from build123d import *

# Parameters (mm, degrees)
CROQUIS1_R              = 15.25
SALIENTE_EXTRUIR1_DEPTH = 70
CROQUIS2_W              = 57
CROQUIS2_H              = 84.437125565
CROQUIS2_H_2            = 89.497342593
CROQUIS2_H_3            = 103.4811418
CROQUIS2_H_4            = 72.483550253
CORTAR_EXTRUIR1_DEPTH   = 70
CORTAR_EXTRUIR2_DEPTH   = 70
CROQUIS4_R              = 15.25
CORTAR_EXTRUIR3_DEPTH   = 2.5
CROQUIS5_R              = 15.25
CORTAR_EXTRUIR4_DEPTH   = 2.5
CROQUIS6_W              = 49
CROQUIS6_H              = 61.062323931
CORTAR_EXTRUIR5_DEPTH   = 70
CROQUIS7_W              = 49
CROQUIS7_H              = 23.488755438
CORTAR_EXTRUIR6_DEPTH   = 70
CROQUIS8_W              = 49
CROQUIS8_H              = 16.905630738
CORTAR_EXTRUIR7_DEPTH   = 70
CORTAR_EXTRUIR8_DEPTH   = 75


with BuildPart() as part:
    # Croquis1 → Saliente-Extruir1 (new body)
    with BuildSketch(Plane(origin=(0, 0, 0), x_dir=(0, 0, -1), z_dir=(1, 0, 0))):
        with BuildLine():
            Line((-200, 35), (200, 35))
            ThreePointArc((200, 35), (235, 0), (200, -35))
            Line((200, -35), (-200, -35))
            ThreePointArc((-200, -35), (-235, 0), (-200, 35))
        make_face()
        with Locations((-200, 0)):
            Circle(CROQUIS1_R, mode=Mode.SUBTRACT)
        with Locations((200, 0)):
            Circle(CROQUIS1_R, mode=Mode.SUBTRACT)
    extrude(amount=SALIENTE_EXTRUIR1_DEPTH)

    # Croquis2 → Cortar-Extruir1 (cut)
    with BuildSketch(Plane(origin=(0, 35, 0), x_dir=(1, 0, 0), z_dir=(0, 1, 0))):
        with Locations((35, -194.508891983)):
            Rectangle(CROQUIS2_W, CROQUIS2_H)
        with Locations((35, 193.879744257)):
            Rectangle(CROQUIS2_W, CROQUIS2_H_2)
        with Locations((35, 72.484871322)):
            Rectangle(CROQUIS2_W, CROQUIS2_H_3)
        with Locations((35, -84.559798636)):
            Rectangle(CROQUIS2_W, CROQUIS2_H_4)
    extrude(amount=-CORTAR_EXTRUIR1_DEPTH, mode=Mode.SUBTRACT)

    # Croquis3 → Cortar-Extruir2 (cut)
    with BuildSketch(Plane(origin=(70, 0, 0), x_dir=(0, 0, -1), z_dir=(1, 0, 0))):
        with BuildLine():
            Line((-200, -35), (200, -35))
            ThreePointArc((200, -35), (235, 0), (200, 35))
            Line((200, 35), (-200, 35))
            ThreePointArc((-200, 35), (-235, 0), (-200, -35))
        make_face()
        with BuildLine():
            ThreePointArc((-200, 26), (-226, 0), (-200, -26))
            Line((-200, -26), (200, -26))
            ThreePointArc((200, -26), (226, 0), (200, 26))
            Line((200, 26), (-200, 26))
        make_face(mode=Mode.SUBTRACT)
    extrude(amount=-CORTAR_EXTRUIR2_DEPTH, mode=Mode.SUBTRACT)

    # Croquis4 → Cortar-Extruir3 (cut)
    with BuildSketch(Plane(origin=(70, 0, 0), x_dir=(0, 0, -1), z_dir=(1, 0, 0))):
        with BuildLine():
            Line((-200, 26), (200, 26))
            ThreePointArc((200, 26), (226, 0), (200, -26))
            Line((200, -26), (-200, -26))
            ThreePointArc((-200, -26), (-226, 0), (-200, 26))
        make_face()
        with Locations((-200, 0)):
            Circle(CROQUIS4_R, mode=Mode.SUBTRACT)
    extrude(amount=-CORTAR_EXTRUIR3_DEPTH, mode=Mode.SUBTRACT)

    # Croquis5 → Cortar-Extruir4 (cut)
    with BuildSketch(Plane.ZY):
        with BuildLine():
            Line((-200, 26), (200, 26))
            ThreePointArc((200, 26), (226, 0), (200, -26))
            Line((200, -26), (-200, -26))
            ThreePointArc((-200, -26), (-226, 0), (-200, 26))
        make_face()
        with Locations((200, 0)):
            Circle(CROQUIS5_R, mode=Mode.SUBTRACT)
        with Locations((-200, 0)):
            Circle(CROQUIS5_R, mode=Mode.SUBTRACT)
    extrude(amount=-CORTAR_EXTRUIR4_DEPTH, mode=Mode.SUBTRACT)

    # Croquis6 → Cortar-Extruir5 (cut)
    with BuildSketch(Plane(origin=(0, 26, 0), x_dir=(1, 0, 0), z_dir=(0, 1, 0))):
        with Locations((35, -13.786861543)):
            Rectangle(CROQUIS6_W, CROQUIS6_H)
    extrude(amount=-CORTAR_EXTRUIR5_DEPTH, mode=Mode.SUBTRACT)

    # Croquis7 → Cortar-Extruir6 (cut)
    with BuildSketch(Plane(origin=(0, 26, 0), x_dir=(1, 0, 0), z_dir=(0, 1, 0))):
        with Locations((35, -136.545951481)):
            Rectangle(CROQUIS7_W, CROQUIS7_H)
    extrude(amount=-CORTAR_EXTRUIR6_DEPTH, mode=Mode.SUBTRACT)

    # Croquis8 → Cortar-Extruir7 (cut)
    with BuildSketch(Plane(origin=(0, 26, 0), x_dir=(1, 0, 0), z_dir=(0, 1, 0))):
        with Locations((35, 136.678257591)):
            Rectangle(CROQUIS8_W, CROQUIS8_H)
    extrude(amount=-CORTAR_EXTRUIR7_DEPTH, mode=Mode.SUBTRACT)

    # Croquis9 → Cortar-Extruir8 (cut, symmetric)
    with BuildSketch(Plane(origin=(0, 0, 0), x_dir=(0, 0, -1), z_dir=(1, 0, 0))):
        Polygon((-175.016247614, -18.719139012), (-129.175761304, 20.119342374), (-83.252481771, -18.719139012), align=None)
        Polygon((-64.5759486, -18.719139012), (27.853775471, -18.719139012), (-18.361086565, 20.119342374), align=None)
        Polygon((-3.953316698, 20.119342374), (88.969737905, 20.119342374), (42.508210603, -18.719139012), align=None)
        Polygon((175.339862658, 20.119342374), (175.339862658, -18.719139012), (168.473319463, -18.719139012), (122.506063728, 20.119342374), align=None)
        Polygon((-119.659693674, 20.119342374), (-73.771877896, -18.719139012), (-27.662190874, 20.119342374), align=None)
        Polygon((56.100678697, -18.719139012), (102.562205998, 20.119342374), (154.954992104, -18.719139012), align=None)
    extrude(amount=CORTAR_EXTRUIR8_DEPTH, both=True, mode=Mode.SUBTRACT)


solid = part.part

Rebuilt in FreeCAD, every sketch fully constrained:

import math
import FreeCAD as App
import Part
import Sketcher
Q = App.Units.Quantity


def add_polygon(sketch, points):
    """Adds a closed chain of lines whose ends are joined by coincident constraints."""
    first, n = sketch.GeometryCount, len(points)
    for a, b in zip(points, points[1:] + points[:1]):
        sketch.addGeometry(Part.LineSegment(App.Vector(*a, 0), App.Vector(*b, 0)), False)
    for i in range(n):
        sketch.addConstraint(Sketcher.Constraint("Coincident", first + i, 2, first + (i + 1) % n, 1))

doc = App.newDocument("Part")
body = doc.addObject("PartDesign::Body", "Body")

# Sketch on YZ plane
sketch1 = body.newObject("Sketcher::SketchObject", "Sketch")
sketch1.AttachmentSupport = (doc.getObject("YZ_Plane"), [""])
sketch1.MapMode = "FlatFace"
sketch1.addGeometry([
    Part.LineSegment(App.Vector(35, -200, 0), App.Vector(35, 200, 0)),  # 0
    Part.ArcOfCircle(Part.Circle(App.Vector(0, 200, 0), App.Vector(0, 0, 1), 35), math.radians(0), math.radians(180)),  # 1
    Part.LineSegment(App.Vector(-35, 200, 0), App.Vector(-35, -200, 0)),  # 2
    Part.ArcOfCircle(Part.Circle(App.Vector(0, -200, 0), App.Vector(0, 0, 1), 35), math.radians(180), math.radians(360)),  # 3
    Part.Circle(App.Vector(0, -200, 0), App.Vector(0, 0, 1), 15.25),  # 4
    Part.Circle(App.Vector(0, 200, 0), App.Vector(0, 0, 1), 15.25),  # 5
], False)
sketch1.addConstraint([
    Sketcher.Constraint("Tangent", 0, 2, 1, 1),
    Sketcher.Constraint("Tangent", 1, 2, 2, 1),
    Sketcher.Constraint("Tangent", 2, 2, 3, 1),
    Sketcher.Constraint("Tangent", 3, 2, 0, 1),
    Sketcher.Constraint("Vertical", 0),
    Sketcher.Constraint("Vertical", 2),
    Sketcher.Constraint("Coincident", 4, 3, 3, 3),
    Sketcher.Constraint("Coincident", 5, 3, 1, 3),
    Sketcher.Constraint("Equal", 4, 5),
    Sketcher.Constraint("Symmetric", 1, 3, 3, 3, -1, 1),
    Sketcher.Constraint("Radius", 1, Q("35 mm")),
    Sketcher.Constraint("Diameter", 4, Q("30.5 mm")),
    Sketcher.Constraint("DistanceY", 0, 1, 0, 2, Q("400 mm")),
])
pad1 = body.newObject("PartDesign::Pad", "Pad")
pad1.Profile = sketch1
pad1.Length = 70

# Sketch on XZ plane
sketch2 = body.newObject("Sketcher::SketchObject", "Sketch001")
sketch2.AttachmentSupport = (doc.getObject("XZ_Plane"), [""])
sketch2.MapMode = "FlatFace"
sketch2.AttachmentOffset = App.Placement(App.Vector(0, 0, -35), App.Rotation())
add_polygon(sketch2, [(6.5, 152.290329), (6.5, 236.727455), (63.5, 236.727455), (63.5, 152.290329)])  # lines 0-3
add_polygon(sketch2, [(6.5, -238.628416), (6.5, -149.131073), (63.5, -149.131073), (63.5, -238.628416)])  # lines 4-7
add_polygon(sketch2, [(6.5, -124.225442), (6.5, -20.7443), (63.5, -20.7443), (63.5, -124.225442)])  # lines 8-11
add_polygon(sketch2, [(6.5, 48.318024), (6.5, 120.801574), (63.5, 120.801574), (63.5, 48.318024)])  # lines 12-15
sketch2.addConstraint([
    Sketcher.Constraint("Vertical", 0),
    Sketcher.Constraint("Horizontal", 1),
    Sketcher.Constraint("Vertical", 2),
    Sketcher.Constraint("Horizontal", 3),
    Sketcher.Constraint("Vertical", 4),
    Sketcher.Constraint("Horizontal", 5),
    Sketcher.Constraint("Vertical", 6),
    Sketcher.Constraint("Horizontal", 7),
    Sketcher.Constraint("Vertical", 8),
    Sketcher.Constraint("Horizontal", 9),
    Sketcher.Constraint("Vertical", 10),
    Sketcher.Constraint("Horizontal", 11),
    Sketcher.Constraint("Vertical", 12),
    Sketcher.Constraint("Horizontal", 13),
    Sketcher.Constraint("Vertical", 14),
    Sketcher.Constraint("Horizontal", 15),
    Sketcher.Constraint("Vertical", 3, 2, 4, 2),
    Sketcher.Constraint("Vertical", 2, 2, 5, 2),
    Sketcher.Constraint("Vertical", 7, 2, 8, 2),
    Sketcher.Constraint("Vertical", 6, 2, 9, 2),
    Sketcher.Constraint("Vertical", 11, 2, 12, 2),
    Sketcher.Constraint("Vertical", 10, 2, 13, 2),
    Sketcher.Constraint("DistanceX", 1, 1, 1, 2, Q("57 mm")),
    Sketcher.Constraint("DistanceX", -1, 1, 0, 2, Q("6.5 mm")),
    Sketcher.Constraint("DistanceY", 8, 1, 8, 2, Q("103.481142 mm")),
    Sketcher.Constraint("DistanceY", 12, 1, 12, 2, Q("72.48355 mm")),
    Sketcher.Constraint("DistanceY", 8, 2, -1, 1, Q("20.7443 mm")),
    Sketcher.Constraint("DistanceY", 0, 1, 0, 2, Q("84.437126 mm")),
    Sketcher.Constraint("DistanceY", 4, 1, 4, 2, Q("89.497343 mm")),
    Sketcher.Constraint("DistanceY", -1, 1, 2, 2, Q("152.290329 mm")),
    Sketcher.Constraint("DistanceY", 6, 2, 1, 2, Q("475.35587 mm")),
    Sketcher.Constraint("DistanceY", 12, 2, 0, 2, Q("115.925881 mm")),
])
pocket1 = body.newObject("PartDesign::Pocket", "Pocket")
pocket1.Profile = sketch2
pocket1.Length = 70
pocket1.Reversed = True

# Sketch on YZ plane
sketch3 = body.newObject("Sketcher::SketchObject", "Sketch002")
sketch3.AttachmentSupport = (doc.getObject("YZ_Plane"), [""])
sketch3.MapMode = "FlatFace"
sketch3.AttachmentOffset = App.Placement(App.Vector(0, 0, 70), App.Rotation())
sketch3.addGeometry([
    Part.LineSegment(App.Vector(-35, 200, 0), App.Vector(-35, -200, 0)),  # 0
    Part.ArcOfCircle(Part.Circle(App.Vector(0, -200, 0), App.Vector(0, 0, 1), 35), math.radians(180), math.radians(360)),  # 1
    Part.LineSegment(App.Vector(35, -200, 0), App.Vector(35, 200, 0)),  # 2
    Part.ArcOfCircle(Part.Circle(App.Vector(0, 200, 0), App.Vector(0, 0, 1), 35), math.radians(0), math.radians(180)),  # 3
    Part.ArcOfCircle(Part.Circle(App.Vector(0, 200, 0), App.Vector(0, 0, 1), 26), math.radians(0), math.radians(180)),  # 4
    Part.LineSegment(App.Vector(26, 200, 0), App.Vector(26, -200, 0)),  # 5
    Part.ArcOfCircle(Part.Circle(App.Vector(0, -200, 0), App.Vector(0, 0, 1), 26), math.radians(180), math.radians(360)),  # 6
    Part.LineSegment(App.Vector(-26, -200, 0), App.Vector(-26, 200, 0)),  # 7
], False)
sketch3.addConstraint([
    Sketcher.Constraint("Tangent", 0, 2, 1, 1),
    Sketcher.Constraint("Tangent", 1, 2, 2, 1),
    Sketcher.Constraint("Tangent", 2, 2, 3, 1),
    Sketcher.Constraint("Tangent", 3, 2, 0, 1),
    Sketcher.Constraint("Tangent", 4, 1, 5, 1),
    Sketcher.Constraint("Tangent", 5, 2, 6, 2),
    Sketcher.Constraint("Tangent", 6, 1, 7, 1),
    Sketcher.Constraint("Tangent", 7, 2, 4, 2),
    Sketcher.Constraint("Vertical", 0),
    Sketcher.Constraint("Vertical", 2),
    Sketcher.Constraint("Vertical", 5),
    Sketcher.Constraint("Vertical", 7),
    Sketcher.Constraint("Coincident", 4, 3, 3, 3),
    Sketcher.Constraint("Symmetric", 1, 3, 3, 3, -1, 1),
    Sketcher.Constraint("Horizontal", 6, 3, 0, 2),
    Sketcher.Constraint("Radius", 1, Q("35 mm")),
    Sketcher.Constraint("Radius", 4, Q("26 mm")),
    Sketcher.Constraint("DistanceY", 0, 2, 0, 1, Q("400 mm")),
])
pocket2 = body.newObject("PartDesign::Pocket", "Pocket001")
pocket2.Profile = sketch3
pocket2.Length = 70

# Sketch on YZ plane
sketch4 = body.newObject("Sketcher::SketchObject", "Sketch003")
sketch4.AttachmentSupport = (doc.getObject("YZ_Plane"), [""])
sketch4.MapMode = "FlatFace"
sketch4.AttachmentOffset = App.Placement(App.Vector(0, 0, 70), App.Rotation())
sketch4.addGeometry([
    Part.LineSegment(App.Vector(26, -200, 0), App.Vector(26, 200, 0)),  # 0
    Part.ArcOfCircle(Part.Circle(App.Vector(0, 200, 0), App.Vector(0, 0, 1), 26), math.radians(0), math.radians(180)),  # 1
    Part.LineSegment(App.Vector(-26, 200, 0), App.Vector(-26, -200, 0)),  # 2
    Part.ArcOfCircle(Part.Circle(App.Vector(0, -200, 0), App.Vector(0, 0, 1), 26), math.radians(180), math.radians(360)),  # 3
    Part.Circle(App.Vector(0, 200, 0), App.Vector(0, 0, 1), 15.25),  # 4
], False)
sketch4.addConstraint([
    Sketcher.Constraint("Tangent", 0, 2, 1, 1),
    Sketcher.Constraint("Tangent", 1, 2, 2, 1),
    Sketcher.Constraint("Tangent", 2, 2, 3, 1),
    Sketcher.Constraint("Tangent", 3, 2, 0, 1),
    Sketcher.Constraint("Vertical", 0),
    Sketcher.Constraint("Vertical", 2),
    Sketcher.Constraint("Coincident", 4, 3, 1, 3),
    Sketcher.Constraint("Symmetric", 1, 3, 3, 3, -1, 1),
    Sketcher.Constraint("Radius", 1, Q("26 mm")),
    Sketcher.Constraint("Diameter", 4, Q("30.5 mm")),
    Sketcher.Constraint("DistanceY", 0, 1, 0, 2, Q("400 mm")),
])
pocket3 = body.newObject("PartDesign::Pocket", "Pocket002")
pocket3.Profile = sketch4
pocket3.Length = 2.5

# Sketch on YZ plane
sketch5 = body.newObject("Sketcher::SketchObject", "Sketch004")
sketch5.AttachmentSupport = (doc.getObject("YZ_Plane"), [""])
sketch5.MapMode = "FlatFace"
sketch5.addGeometry([
    Part.LineSegment(App.Vector(26, 200, 0), App.Vector(26, -200, 0)),  # 0
    Part.ArcOfCircle(Part.Circle(App.Vector(0, -200, 0), App.Vector(0, 0, 1), 26), math.radians(180), math.radians(360)),  # 1
    Part.LineSegment(App.Vector(-26, -200, 0), App.Vector(-26, 200, 0)),  # 2
    Part.ArcOfCircle(Part.Circle(App.Vector(0, 200, 0), App.Vector(0, 0, 1), 26), math.radians(0), math.radians(180)),  # 3
    Part.Circle(App.Vector(0, 200, 0), App.Vector(0, 0, 1), 15.25),  # 4
    Part.Circle(App.Vector(0, -200, 0), App.Vector(0, 0, 1), 15.25),  # 5
], False)
sketch5.addConstraint([
    Sketcher.Constraint("Tangent", 0, 2, 1, 2),
    Sketcher.Constraint("Tangent", 1, 1, 2, 1),
    Sketcher.Constraint("Tangent", 2, 2, 3, 2),
    Sketcher.Constraint("Tangent", 3, 1, 0, 1),
    Sketcher.Constraint("Vertical", 0),
    Sketcher.Constraint("Vertical", 2),
    Sketcher.Constraint("Coincident", 4, 3, 3, 3),
    Sketcher.Constraint("Coincident", 5, 3, 1, 3),
    Sketcher.Constraint("Equal", 4, 5),
    Sketcher.Constraint("Symmetric", 1, 3, 3, 3, -1, 1),
    Sketcher.Constraint("Radius", 1, Q("26 mm")),
    Sketcher.Constraint("Diameter", 4, Q("30.5 mm")),
    Sketcher.Constraint("DistanceY", 0, 2, 0, 1, Q("400 mm")),
])
pocket4 = body.newObject("PartDesign::Pocket", "Pocket003")
pocket4.Profile = sketch5
pocket4.Length = 2.5
pocket4.Reversed = True

# Sketch on XZ plane
sketch6 = body.newObject("Sketcher::SketchObject", "Sketch005")
sketch6.AttachmentSupport = (doc.getObject("XZ_Plane"), [""])
sketch6.MapMode = "FlatFace"
sketch6.AttachmentOffset = App.Placement(App.Vector(0, 0, -26), App.Rotation())
add_polygon(sketch6, [(10.5, -16.7443), (10.5, 44.318024), (59.5, 44.318024), (59.5, -16.7443)])  # lines 0-3
sketch6.addConstraint([
    Sketcher.Constraint("Vertical", 0),
    Sketcher.Constraint("Horizontal", 1),
    Sketcher.Constraint("Vertical", 2),
    Sketcher.Constraint("Horizontal", 3),
    Sketcher.Constraint("DistanceX", 1, 1, 1, 2, Q("49 mm")),
    Sketcher.Constraint("DistanceX", -1, 1, 0, 2, Q("10.5 mm")),
    Sketcher.Constraint("DistanceY", 2, 2, -1, 1, Q("16.7443 mm")),
    Sketcher.Constraint("DistanceY", 0, 1, 0, 2, Q("61.062324 mm")),
])
pocket5 = body.newObject("PartDesign::Pocket", "Pocket004")
pocket5.Profile = sketch6
pocket5.Length = 70
pocket5.Reversed = True

# Sketch on XZ plane
sketch7 = body.newObject("Sketcher::SketchObject", "Sketch006")
sketch7.AttachmentSupport = (doc.getObject("XZ_Plane"), [""])
sketch7.MapMode = "FlatFace"
sketch7.AttachmentOffset = App.Placement(App.Vector(0, 0, -26), App.Rotation())
add_polygon(sketch7, [(10.5, 124.801574), (10.5, 148.290329), (59.5, 148.290329), (59.5, 124.801574)])  # lines 0-3
sketch7.addConstraint([
    Sketcher.Constraint("Vertical", 0),
    Sketcher.Constraint("Horizontal", 1),
    Sketcher.Constraint("Vertical", 2),
    Sketcher.Constraint("Horizontal", 3),
    Sketcher.Constraint("DistanceX", 1, 1, 1, 2, Q("49 mm")),
    Sketcher.Constraint("DistanceX", -1, 1, 0, 2, Q("10.5 mm")),
    Sketcher.Constraint("DistanceY", 0, 1, 0, 2, Q("23.488755 mm")),
    Sketcher.Constraint("DistanceY", -1, 1, 0, 2, Q("148.290329 mm")),
])
pocket6 = body.newObject("PartDesign::Pocket", "Pocket005")
pocket6.Profile = sketch7
pocket6.Length = 70
pocket6.Reversed = True

# Sketch on XZ plane
sketch8 = body.newObject("Sketcher::SketchObject", "Sketch007")
sketch8.AttachmentSupport = (doc.getObject("XZ_Plane"), [""])
sketch8.MapMode = "FlatFace"
sketch8.AttachmentOffset = App.Placement(App.Vector(0, 0, -26), App.Rotation())
add_polygon(sketch8, [(10.5, -145.131073), (10.5, -128.225442), (59.5, -128.225442), (59.5, -145.131073)])  # lines 0-3
sketch8.addConstraint([
    Sketcher.Constraint("Vertical", 0),
    Sketcher.Constraint("Horizontal", 1),
    Sketcher.Constraint("Vertical", 2),
    Sketcher.Constraint("Horizontal", 3),
    Sketcher.Constraint("DistanceX", 1, 1, 1, 2, Q("49 mm")),
    Sketcher.Constraint("DistanceX", -1, 1, 0, 2, Q("10.5 mm")),
    Sketcher.Constraint("DistanceY", 0, 1, 0, 2, Q("16.905631 mm")),
    Sketcher.Constraint("DistanceY", 0, 2, -1, 1, Q("128.225442 mm")),
])
pocket7 = body.newObject("PartDesign::Pocket", "Pocket006")
pocket7.Profile = sketch8
pocket7.Length = 70
pocket7.Reversed = True

# Sketch on YZ plane
sketch9 = body.newObject("Sketcher::SketchObject", "Sketch008")
sketch9.AttachmentSupport = (doc.getObject("YZ_Plane"), [""])
sketch9.MapMode = "FlatFace"
add_polygon(sketch9, [(20.119342, 129.175761), (-18.719139, 175.016248), (-18.719139, 83.252482)])  # lines 0-2
add_polygon(sketch9, [(-18.719139, 64.575949), (-18.719139, -27.853775), (20.119342, 18.361087)])  # lines 3-5
add_polygon(sketch9, [(20.119342, -88.969738), (20.119342, 3.953317), (-18.719139, -42.508211)])  # lines 6-8
add_polygon(sketch9, [(-18.719139, -175.339863), (20.119342, -175.339863), (20.119342, -122.506064), (-18.719139, -168.473319)])  # lines 9-12
add_polygon(sketch9, [(20.119342, 119.659694), (-18.719139, 73.771878), (20.119342, 27.662191)])  # lines 13-15
add_polygon(sketch9, [(20.119342, -102.562206), (-18.719139, -56.100679), (-18.719139, -154.954992)])  # lines 16-18
sketch9.addConstraint([
    Sketcher.Constraint("Vertical", 1),
    Sketcher.Constraint("Vertical", 3),
    Sketcher.Constraint("Vertical", 6),
    Sketcher.Constraint("Horizontal", 9),
    Sketcher.Constraint("Vertical", 10),
    Sketcher.Constraint("Vertical", 12),
    Sketcher.Constraint("Vertical", 15),
    Sketcher.Constraint("Vertical", 17),
    Sketcher.Constraint("Parallel", 8, 16),
    Sketcher.Constraint("Vertical", 1, 2, 3, 2),
    Sketcher.Constraint("Vertical", 2, 2, 4, 2),
    Sketcher.Constraint("Vertical", 4, 2, 6, 2),
    Sketcher.Constraint("Vertical", 5, 2, 7, 2),
    Sketcher.Constraint("Vertical", 8, 2, 9, 2),
    Sketcher.Constraint("Vertical", 7, 2, 11, 2),
    Sketcher.Constraint("Vertical", 12, 2, 13, 2),
    Sketcher.Constraint("Vertical", 10, 2, 14, 2),
    Sketcher.Constraint("Vertical", 13, 2, 16, 2),
    Sketcher.Constraint("Vertical", 15, 2, 18, 2),
    Sketcher.Constraint("Equal", 4, 5),
    Sketcher.Constraint("Equal", 7, 8),
    Sketcher.Constraint("DistanceY", 10, 1, 10, 2, Q("52.833799 mm")),
    Sketcher.Constraint("DistanceX", 9, 1, 9, 2, Q("38.838481 mm")),
    Sketcher.Constraint("DistanceY", 5, 2, 0, 2, Q("110.440299 mm")),
    Sketcher.Constraint("Distance", 2, Q("60.144619 mm")),
    Sketcher.Constraint("Distance", 4, Q("60.36755 mm")),
    Sketcher.Constraint("Distance", 14, Q("60.287071 mm")),
    Sketcher.Constraint("Distance", 18, Q("65.218338 mm")),
    Sketcher.Constraint("DistanceY", 1, 2, 1, 1, Q("91.763766 mm")),
    Sketcher.Constraint("DistanceY", 6, 1, 6, 2, Q("92.923055 mm")),
    Sketcher.Constraint("DistanceY", 12, 2, 12, 1, Q("6.866543 mm")),
    Sketcher.Constraint("DistanceY", 15, 1, 15, 2, Q("91.997503 mm")),
    Sketcher.Constraint("DistanceX", 0, 2, -1, 1, Q("18.719139 mm")),
    Sketcher.Constraint("DistanceY", -1, 1, 1, 2, Q("83.252482 mm")),
    Sketcher.Constraint("DistanceY", 7, 2, -1, 1, Q("42.508211 mm")),
    Sketcher.Constraint("DistanceY", 11, 2, -1, 1, Q("168.473319 mm")),
    Sketcher.Constraint("DistanceY", -1, 1, 14, 2, Q("27.662191 mm")),
    Sketcher.Constraint("DistanceY", 16, 2, -1, 1, Q("56.100679 mm")),
])
pocket8 = body.newObject("PartDesign::Pocket", "Pocket007")
pocket8.Profile = sketch9
pocket8.Length = 150
pocket8.Midplane = True

doc.recompute()
